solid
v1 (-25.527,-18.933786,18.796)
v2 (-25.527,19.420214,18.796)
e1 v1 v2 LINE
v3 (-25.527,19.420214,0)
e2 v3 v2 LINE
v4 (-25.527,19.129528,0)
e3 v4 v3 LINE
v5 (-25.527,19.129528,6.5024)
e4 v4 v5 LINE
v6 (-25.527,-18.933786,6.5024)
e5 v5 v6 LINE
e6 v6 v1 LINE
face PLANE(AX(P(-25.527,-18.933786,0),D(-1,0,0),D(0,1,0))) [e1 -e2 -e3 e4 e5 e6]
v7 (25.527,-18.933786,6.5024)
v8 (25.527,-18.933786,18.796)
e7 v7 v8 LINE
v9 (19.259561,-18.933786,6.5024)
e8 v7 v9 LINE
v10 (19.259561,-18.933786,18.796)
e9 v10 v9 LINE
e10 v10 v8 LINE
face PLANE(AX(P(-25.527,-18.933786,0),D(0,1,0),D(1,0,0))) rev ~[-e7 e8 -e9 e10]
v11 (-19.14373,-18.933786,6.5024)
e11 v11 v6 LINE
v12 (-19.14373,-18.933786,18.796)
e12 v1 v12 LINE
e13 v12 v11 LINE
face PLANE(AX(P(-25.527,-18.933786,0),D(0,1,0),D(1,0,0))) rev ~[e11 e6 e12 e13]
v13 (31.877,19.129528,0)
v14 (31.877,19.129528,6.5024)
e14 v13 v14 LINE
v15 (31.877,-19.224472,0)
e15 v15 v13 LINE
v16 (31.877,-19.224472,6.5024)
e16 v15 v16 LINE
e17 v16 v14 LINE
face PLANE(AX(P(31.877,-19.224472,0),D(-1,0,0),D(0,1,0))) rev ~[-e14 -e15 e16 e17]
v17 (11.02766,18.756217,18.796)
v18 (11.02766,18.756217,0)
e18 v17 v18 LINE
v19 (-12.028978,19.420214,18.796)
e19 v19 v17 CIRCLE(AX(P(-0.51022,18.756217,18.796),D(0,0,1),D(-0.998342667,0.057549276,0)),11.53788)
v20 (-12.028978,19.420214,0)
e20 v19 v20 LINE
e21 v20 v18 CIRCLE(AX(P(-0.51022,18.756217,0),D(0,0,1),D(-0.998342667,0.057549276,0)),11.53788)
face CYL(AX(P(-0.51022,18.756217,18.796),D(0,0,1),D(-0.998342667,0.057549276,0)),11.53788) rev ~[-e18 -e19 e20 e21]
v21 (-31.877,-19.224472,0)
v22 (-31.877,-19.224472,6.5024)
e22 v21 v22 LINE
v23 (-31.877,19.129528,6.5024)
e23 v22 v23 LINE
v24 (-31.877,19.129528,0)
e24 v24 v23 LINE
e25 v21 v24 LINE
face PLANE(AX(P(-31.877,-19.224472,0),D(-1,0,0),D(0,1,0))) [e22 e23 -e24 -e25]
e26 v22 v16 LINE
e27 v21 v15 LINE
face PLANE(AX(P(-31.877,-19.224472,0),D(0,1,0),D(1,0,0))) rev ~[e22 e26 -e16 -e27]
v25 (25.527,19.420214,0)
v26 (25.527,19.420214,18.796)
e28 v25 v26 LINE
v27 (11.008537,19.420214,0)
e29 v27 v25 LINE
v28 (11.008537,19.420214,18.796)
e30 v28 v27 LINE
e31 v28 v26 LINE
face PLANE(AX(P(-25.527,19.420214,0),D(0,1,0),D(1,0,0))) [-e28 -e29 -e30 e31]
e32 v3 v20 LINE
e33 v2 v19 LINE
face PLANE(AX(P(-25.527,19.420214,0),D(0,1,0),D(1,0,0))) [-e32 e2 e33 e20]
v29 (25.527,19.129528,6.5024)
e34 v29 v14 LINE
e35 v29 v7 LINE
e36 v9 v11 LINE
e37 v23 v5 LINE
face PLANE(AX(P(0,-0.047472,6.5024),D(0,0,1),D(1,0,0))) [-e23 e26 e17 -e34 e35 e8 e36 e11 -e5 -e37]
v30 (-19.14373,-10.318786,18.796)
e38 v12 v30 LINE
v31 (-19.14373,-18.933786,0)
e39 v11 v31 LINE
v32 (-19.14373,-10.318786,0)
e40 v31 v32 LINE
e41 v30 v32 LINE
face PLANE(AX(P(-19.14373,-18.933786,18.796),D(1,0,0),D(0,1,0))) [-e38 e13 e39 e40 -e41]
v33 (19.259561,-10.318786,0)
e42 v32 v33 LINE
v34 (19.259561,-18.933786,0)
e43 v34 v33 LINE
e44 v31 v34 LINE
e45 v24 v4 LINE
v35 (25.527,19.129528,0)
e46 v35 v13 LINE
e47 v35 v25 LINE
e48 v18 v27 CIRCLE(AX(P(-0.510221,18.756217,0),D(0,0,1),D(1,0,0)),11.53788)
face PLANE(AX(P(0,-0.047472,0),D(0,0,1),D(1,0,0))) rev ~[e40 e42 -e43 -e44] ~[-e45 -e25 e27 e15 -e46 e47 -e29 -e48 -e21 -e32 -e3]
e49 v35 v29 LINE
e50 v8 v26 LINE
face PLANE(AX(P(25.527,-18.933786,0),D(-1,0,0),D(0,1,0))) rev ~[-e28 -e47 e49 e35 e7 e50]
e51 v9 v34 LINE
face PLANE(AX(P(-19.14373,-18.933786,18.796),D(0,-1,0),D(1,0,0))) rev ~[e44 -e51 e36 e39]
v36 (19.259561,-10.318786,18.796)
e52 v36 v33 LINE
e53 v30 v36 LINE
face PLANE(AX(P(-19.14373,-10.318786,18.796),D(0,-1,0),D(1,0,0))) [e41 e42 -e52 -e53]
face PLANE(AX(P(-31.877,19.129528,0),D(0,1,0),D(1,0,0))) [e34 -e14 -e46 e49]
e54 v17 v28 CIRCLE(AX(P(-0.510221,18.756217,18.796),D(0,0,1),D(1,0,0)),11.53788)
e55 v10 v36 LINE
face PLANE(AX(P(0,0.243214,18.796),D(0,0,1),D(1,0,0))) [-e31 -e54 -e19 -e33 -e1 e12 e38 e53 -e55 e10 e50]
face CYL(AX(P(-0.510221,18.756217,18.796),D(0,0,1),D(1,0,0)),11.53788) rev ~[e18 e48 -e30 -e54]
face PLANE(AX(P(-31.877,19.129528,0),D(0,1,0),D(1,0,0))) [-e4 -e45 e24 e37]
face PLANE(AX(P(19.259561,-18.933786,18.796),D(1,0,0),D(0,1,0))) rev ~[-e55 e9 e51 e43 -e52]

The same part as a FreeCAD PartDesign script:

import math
import FreeCAD as App
import Part
import Sketcher
from FreeCAD import Vector
Q = App.Units.Quantity

doc = App.newDocument("Part")
params = doc.addObject("Spreadsheet::Sheet", "Params")
for row, (alias, value) in enumerate([
    ("sketch1_width", "2.51 in"),
    ("sketch1_height", "1.51 in"),
    ("pad1_length", "0.256 in"),
    ("sketch2_width", "2.01 in"),
    ("sketch2_height", "1.51 in"),
    ("pad2_length", "0.74 in"),
    ("pocket1_length", "1 in"),
], start=1):
    params.set(f"A{row}", alias)
    params.set(f"B{row}", "=" + value)
    params.setAlias(f"B{row}", alias)

body = doc.addObject("PartDesign::Body", "Body")

sketch1 = doc.addObject("Sketcher::SketchObject", "Sketch")
body.addObject(sketch1)
sketch1.AttachmentSupport = (doc.XY_Plane, [""])
sketch1.MapMode = "FlatFace"
sketch1.addGeometry(Part.LineSegment(Vector(-31.877, 19.129528, 0), Vector(-31.877, -19.224472, 0)), False)
sketch1.addGeometry(Part.LineSegment(Vector(-31.877, -19.224472, 0), Vector(31.877, -19.224472, 0)), False)
sketch1.addGeometry(Part.LineSegment(Vector(31.877, -19.224472, 0), Vector(31.877, 19.129528, 0)), False)
sketch1.addGeometry(Part.LineSegment(Vector(31.877, 19.129528, 0), Vector(-31.877, 19.129528, 0)), False)
sketch1.addConstraint(Sketcher.Constraint("Coincident", 0, 2, 1, 1))
sketch1.addConstraint(Sketcher.Constraint("Coincident", 1, 2, 2, 1))
sketch1.addConstraint(Sketcher.Constraint("Coincident", 2, 2, 3, 1))
sketch1.addConstraint(Sketcher.Constraint("Coincident", 3, 2, 0, 1))
sketch1.addConstraint(Sketcher.Constraint("Vertical", 0))
sketch1.addConstraint(Sketcher.Constraint("Horizontal", 1))
sketch1.addConstraint(Sketcher.Constraint("Vertical", 2))
sketch1.addConstraint(Sketcher.Constraint("Horizontal", 3))
sketch1.addConstraint(Sketcher.Constraint("DistanceX", 1, 1, 1, 2, Q("2.51 in")))
sketch1.addConstraint(Sketcher.Constraint("DistanceY", 0, 2, 0, 1, Q("1.51 in")))
sketch1.addConstraint(Sketcher.Constraint("DistanceX", 0, 2, -1, 1, Q("1.255 in")))
sketch1.addConstraint(Sketcher.Constraint("DistanceY", 0, 2, -1, 1, 19.224472))
sketch1.setExpression("Constraints[8]", "Params.sketch1_width")
sketch1.setExpression("Constraints[9]", "Params.sketch1_height")
pad1 = doc.addObject("PartDesign::Pad", "Pad")
body.addObject(pad1)
pad1.Profile = sketch1
pad1.setExpression("Length", "Params.pad1_length")

sketch2 = doc.addObject("Sketcher::SketchObject", "Sketch001")
body.addObject(sketch2)
sketch2.AttachmentSupport = (doc.XY_Plane, [""])
sketch2.MapMode = "FlatFace"
sketch2.addGeometry(Part.LineSegment(Vector(-25.527, 19.420214, 0), Vector(-25.527, -18.933786, 0)), False)
sketch2.addGeometry(Part.LineSegment(Vector(-25.527, -18.933786, 0), Vector(25.527, -18.933786, 0)), False)
sketch2.addGeometry(Part.LineSegment(Vector(25.527, -18.933786, 0), Vector(25.527, 19.420214, 0)), False)
sketch2.addGeometry(Part.LineSegment(Vector(25.527, 19.420214, 0), Vector(-25.527, 19.420214, 0)), False)
sketch2.addConstraint(Sketcher.Constraint("Coincident", 0, 2, 1, 1))
sketch2.addConstraint(Sketcher.Constraint("Coincident", 1, 2, 2, 1))
sketch2.addConstraint(Sketcher.Constraint("Coincident", 2, 2, 3, 1))
sketch2.addConstraint(Sketcher.Constraint("Coincident", 3, 2, 0, 1))
sketch2.addConstraint(Sketcher.Constraint("Vertical", 0))
sketch2.addConstraint(Sketcher.Constraint("Horizontal", 1))
sketch2.addConstraint(Sketcher.Constraint("Vertical", 2))
sketch2.addConstraint(Sketcher.Constraint("Horizontal", 3))
sketch2.addConstraint(Sketcher.Constraint("DistanceX", 1, 1, 1, 2, Q("2.01 in")))
sketch2.addConstraint(Sketcher.Constraint("DistanceY", 0, 2, 0, 1, Q("1.51 in")))
sketch2.addConstraint(Sketcher.Constraint("DistanceX", 0, 2, -1, 1, Q("1.005 in")))
sketch2.addConstraint(Sketcher.Constraint("DistanceY", 0, 2, -1, 1, 18.933786))
sketch2.setExpression("Constraints[8]", "Params.sketch2_width")
sketch2.setExpression("Constraints[9]", "Params.sketch2_height")
pad2 = doc.addObject("PartDesign::Pad", "Pad001")
body.addObject(pad2)
pad2.Profile = sketch2
pad2.setExpression("Length", "Params.pad2_length")

sketch3 = doc.addObject("Sketcher::SketchObject", "Sketch002")
body.addObject(sketch3)
sketch3.AttachmentSupport = (doc.XY_Plane, [""])
sketch3.MapMode = "FlatFace"
sketch3.AttachmentOffset = App.Placement(Vector(0, 0, 0.74 * 25.4), App.Rotation())
sketch3.addGeometry(Part.LineSegment(Vector(-19.14373, -10.318786, 0), Vector(-19.14373, -18.933786, 0)), False)
sketch3.addGeometry(Part.LineSegment(Vector(-19.14373, -18.933786, 0), Vector(19.259561, -18.933786, 0)), False)
sketch3.addGeometry(Part.LineSegment(Vector(19.259561, -18.933786, 0), Vector(19.259561, -10.318786, 0)), False)
sketch3.addGeometry(Part.LineSegment(Vector(19.259561, -10.318786, 0), Vector(-19.14373, -10.318786, 0)), False)
sketch3.addConstraint(Sketcher.Constraint("Coincident", 0, 2, 1, 1))
sketch3.addConstraint(Sketcher.Constraint("Coincident", 1, 2, 2, 1))
sketch3.addConstraint(Sketcher.Constraint("Coincident", 2, 2, 3, 1))
sketch3.addConstraint(Sketcher.Constraint("Coincident", 3, 2, 0, 1))
sketch3.addConstraint(Sketcher.Constraint("Vertical", 0))
sketch3.addConstraint(Sketcher.Constraint("Horizontal", 1))
sketch3.addConstraint(Sketcher.Constraint("Vertical", 2))
sketch3.addConstraint(Sketcher.Constraint("Horizontal", 3))
sketch3.addConstraint(Sketcher.Constraint("DistanceY", 0, 2, 0, 1, 8.615))
sketch3.addConstraint(Sketcher.Constraint("DistanceX", 1, 1, 1, 2, 38.403291))
sketch3.addConstraint(Sketcher.Constraint("DistanceX", 0, 2, -1, 1, 19.14373))
sketch3.addConstraint(Sketcher.Constraint("DistanceY", 0, 2, -1, 1, 18.933786))
pocket1 = doc.addObject("PartDesign::Pocket", "Pocket")
body.addObject(pocket1)
pocket1.Profile = sketch3
pocket1.setExpression("Length", "Params.pocket1_length")

sketch4 = doc.addObject("Sketcher::SketchObject", "Sketch003")
body.addObject(sketch4)
sketch4.AttachmentSupport = (doc.XY_Plane, [""])
sketch4.MapMode = "FlatFace"
sketch4.AttachmentOffset = App.Placement(Vector(0, 0, 0.74 * 25.4), App.Rotation())
sketch4.addGeometry(Part.ArcOfCircle(Part.Circle(Vector(-0.510221, 18.756217, 0), Vector(0, 0, 1), 11.53788), math.radians(0), math.radians(3.299153)), False)
sketch4.addGeometry(Part.LineSegment(Vector(11.008537, 19.420214, 0), Vector(-12.028978, 19.420214, 0)), False)
sketch4.addGeometry(Part.ArcOfCircle(Part.Circle(Vector(-0.51022, 18.756217, 0), Vector(0, 0, 1), 11.53788), math.radians(176.700847), math.radians(360)), False)
sketch4.addConstraint(Sketcher.Constraint("Coincident", 0, 2, 1, 1))
sketch4.addConstraint(Sketcher.Constraint("Coincident", 1, 2, 2, 1))
sketch4.addConstraint(Sketcher.Constraint("Tangent", 2, 2, 0, 1))
sketch4.addConstraint(Sketcher.Constraint("Horizontal", 1))
sketch4.addConstraint(Sketcher.Constraint("Equal", 0, 2))
sketch4.addConstraint(Sketcher.Constraint("Horizontal", 0, 3, 2, 2))
sketch4.addConstraint(Sketcher.Constraint("Radius", 0, 11.53788))
sketch4.addConstraint(Sketcher.Constraint("DistanceX", 1, 2, 1, 1, 23.037516))
sketch4.addConstraint(Sketcher.Constraint("DistanceX", 0, 3, -1, 1, 0.510221))
sketch4.addConstraint(Sketcher.Constraint("DistanceY", -1, 1, 0, 3, 18.756217))
pocket2 = doc.addObject("PartDesign::Pocket", "Pocket001")
body.addObject(pocket2)
pocket2.Profile = sketch4
pocket2.Type = "ThroughAll"

doc.recompute()
